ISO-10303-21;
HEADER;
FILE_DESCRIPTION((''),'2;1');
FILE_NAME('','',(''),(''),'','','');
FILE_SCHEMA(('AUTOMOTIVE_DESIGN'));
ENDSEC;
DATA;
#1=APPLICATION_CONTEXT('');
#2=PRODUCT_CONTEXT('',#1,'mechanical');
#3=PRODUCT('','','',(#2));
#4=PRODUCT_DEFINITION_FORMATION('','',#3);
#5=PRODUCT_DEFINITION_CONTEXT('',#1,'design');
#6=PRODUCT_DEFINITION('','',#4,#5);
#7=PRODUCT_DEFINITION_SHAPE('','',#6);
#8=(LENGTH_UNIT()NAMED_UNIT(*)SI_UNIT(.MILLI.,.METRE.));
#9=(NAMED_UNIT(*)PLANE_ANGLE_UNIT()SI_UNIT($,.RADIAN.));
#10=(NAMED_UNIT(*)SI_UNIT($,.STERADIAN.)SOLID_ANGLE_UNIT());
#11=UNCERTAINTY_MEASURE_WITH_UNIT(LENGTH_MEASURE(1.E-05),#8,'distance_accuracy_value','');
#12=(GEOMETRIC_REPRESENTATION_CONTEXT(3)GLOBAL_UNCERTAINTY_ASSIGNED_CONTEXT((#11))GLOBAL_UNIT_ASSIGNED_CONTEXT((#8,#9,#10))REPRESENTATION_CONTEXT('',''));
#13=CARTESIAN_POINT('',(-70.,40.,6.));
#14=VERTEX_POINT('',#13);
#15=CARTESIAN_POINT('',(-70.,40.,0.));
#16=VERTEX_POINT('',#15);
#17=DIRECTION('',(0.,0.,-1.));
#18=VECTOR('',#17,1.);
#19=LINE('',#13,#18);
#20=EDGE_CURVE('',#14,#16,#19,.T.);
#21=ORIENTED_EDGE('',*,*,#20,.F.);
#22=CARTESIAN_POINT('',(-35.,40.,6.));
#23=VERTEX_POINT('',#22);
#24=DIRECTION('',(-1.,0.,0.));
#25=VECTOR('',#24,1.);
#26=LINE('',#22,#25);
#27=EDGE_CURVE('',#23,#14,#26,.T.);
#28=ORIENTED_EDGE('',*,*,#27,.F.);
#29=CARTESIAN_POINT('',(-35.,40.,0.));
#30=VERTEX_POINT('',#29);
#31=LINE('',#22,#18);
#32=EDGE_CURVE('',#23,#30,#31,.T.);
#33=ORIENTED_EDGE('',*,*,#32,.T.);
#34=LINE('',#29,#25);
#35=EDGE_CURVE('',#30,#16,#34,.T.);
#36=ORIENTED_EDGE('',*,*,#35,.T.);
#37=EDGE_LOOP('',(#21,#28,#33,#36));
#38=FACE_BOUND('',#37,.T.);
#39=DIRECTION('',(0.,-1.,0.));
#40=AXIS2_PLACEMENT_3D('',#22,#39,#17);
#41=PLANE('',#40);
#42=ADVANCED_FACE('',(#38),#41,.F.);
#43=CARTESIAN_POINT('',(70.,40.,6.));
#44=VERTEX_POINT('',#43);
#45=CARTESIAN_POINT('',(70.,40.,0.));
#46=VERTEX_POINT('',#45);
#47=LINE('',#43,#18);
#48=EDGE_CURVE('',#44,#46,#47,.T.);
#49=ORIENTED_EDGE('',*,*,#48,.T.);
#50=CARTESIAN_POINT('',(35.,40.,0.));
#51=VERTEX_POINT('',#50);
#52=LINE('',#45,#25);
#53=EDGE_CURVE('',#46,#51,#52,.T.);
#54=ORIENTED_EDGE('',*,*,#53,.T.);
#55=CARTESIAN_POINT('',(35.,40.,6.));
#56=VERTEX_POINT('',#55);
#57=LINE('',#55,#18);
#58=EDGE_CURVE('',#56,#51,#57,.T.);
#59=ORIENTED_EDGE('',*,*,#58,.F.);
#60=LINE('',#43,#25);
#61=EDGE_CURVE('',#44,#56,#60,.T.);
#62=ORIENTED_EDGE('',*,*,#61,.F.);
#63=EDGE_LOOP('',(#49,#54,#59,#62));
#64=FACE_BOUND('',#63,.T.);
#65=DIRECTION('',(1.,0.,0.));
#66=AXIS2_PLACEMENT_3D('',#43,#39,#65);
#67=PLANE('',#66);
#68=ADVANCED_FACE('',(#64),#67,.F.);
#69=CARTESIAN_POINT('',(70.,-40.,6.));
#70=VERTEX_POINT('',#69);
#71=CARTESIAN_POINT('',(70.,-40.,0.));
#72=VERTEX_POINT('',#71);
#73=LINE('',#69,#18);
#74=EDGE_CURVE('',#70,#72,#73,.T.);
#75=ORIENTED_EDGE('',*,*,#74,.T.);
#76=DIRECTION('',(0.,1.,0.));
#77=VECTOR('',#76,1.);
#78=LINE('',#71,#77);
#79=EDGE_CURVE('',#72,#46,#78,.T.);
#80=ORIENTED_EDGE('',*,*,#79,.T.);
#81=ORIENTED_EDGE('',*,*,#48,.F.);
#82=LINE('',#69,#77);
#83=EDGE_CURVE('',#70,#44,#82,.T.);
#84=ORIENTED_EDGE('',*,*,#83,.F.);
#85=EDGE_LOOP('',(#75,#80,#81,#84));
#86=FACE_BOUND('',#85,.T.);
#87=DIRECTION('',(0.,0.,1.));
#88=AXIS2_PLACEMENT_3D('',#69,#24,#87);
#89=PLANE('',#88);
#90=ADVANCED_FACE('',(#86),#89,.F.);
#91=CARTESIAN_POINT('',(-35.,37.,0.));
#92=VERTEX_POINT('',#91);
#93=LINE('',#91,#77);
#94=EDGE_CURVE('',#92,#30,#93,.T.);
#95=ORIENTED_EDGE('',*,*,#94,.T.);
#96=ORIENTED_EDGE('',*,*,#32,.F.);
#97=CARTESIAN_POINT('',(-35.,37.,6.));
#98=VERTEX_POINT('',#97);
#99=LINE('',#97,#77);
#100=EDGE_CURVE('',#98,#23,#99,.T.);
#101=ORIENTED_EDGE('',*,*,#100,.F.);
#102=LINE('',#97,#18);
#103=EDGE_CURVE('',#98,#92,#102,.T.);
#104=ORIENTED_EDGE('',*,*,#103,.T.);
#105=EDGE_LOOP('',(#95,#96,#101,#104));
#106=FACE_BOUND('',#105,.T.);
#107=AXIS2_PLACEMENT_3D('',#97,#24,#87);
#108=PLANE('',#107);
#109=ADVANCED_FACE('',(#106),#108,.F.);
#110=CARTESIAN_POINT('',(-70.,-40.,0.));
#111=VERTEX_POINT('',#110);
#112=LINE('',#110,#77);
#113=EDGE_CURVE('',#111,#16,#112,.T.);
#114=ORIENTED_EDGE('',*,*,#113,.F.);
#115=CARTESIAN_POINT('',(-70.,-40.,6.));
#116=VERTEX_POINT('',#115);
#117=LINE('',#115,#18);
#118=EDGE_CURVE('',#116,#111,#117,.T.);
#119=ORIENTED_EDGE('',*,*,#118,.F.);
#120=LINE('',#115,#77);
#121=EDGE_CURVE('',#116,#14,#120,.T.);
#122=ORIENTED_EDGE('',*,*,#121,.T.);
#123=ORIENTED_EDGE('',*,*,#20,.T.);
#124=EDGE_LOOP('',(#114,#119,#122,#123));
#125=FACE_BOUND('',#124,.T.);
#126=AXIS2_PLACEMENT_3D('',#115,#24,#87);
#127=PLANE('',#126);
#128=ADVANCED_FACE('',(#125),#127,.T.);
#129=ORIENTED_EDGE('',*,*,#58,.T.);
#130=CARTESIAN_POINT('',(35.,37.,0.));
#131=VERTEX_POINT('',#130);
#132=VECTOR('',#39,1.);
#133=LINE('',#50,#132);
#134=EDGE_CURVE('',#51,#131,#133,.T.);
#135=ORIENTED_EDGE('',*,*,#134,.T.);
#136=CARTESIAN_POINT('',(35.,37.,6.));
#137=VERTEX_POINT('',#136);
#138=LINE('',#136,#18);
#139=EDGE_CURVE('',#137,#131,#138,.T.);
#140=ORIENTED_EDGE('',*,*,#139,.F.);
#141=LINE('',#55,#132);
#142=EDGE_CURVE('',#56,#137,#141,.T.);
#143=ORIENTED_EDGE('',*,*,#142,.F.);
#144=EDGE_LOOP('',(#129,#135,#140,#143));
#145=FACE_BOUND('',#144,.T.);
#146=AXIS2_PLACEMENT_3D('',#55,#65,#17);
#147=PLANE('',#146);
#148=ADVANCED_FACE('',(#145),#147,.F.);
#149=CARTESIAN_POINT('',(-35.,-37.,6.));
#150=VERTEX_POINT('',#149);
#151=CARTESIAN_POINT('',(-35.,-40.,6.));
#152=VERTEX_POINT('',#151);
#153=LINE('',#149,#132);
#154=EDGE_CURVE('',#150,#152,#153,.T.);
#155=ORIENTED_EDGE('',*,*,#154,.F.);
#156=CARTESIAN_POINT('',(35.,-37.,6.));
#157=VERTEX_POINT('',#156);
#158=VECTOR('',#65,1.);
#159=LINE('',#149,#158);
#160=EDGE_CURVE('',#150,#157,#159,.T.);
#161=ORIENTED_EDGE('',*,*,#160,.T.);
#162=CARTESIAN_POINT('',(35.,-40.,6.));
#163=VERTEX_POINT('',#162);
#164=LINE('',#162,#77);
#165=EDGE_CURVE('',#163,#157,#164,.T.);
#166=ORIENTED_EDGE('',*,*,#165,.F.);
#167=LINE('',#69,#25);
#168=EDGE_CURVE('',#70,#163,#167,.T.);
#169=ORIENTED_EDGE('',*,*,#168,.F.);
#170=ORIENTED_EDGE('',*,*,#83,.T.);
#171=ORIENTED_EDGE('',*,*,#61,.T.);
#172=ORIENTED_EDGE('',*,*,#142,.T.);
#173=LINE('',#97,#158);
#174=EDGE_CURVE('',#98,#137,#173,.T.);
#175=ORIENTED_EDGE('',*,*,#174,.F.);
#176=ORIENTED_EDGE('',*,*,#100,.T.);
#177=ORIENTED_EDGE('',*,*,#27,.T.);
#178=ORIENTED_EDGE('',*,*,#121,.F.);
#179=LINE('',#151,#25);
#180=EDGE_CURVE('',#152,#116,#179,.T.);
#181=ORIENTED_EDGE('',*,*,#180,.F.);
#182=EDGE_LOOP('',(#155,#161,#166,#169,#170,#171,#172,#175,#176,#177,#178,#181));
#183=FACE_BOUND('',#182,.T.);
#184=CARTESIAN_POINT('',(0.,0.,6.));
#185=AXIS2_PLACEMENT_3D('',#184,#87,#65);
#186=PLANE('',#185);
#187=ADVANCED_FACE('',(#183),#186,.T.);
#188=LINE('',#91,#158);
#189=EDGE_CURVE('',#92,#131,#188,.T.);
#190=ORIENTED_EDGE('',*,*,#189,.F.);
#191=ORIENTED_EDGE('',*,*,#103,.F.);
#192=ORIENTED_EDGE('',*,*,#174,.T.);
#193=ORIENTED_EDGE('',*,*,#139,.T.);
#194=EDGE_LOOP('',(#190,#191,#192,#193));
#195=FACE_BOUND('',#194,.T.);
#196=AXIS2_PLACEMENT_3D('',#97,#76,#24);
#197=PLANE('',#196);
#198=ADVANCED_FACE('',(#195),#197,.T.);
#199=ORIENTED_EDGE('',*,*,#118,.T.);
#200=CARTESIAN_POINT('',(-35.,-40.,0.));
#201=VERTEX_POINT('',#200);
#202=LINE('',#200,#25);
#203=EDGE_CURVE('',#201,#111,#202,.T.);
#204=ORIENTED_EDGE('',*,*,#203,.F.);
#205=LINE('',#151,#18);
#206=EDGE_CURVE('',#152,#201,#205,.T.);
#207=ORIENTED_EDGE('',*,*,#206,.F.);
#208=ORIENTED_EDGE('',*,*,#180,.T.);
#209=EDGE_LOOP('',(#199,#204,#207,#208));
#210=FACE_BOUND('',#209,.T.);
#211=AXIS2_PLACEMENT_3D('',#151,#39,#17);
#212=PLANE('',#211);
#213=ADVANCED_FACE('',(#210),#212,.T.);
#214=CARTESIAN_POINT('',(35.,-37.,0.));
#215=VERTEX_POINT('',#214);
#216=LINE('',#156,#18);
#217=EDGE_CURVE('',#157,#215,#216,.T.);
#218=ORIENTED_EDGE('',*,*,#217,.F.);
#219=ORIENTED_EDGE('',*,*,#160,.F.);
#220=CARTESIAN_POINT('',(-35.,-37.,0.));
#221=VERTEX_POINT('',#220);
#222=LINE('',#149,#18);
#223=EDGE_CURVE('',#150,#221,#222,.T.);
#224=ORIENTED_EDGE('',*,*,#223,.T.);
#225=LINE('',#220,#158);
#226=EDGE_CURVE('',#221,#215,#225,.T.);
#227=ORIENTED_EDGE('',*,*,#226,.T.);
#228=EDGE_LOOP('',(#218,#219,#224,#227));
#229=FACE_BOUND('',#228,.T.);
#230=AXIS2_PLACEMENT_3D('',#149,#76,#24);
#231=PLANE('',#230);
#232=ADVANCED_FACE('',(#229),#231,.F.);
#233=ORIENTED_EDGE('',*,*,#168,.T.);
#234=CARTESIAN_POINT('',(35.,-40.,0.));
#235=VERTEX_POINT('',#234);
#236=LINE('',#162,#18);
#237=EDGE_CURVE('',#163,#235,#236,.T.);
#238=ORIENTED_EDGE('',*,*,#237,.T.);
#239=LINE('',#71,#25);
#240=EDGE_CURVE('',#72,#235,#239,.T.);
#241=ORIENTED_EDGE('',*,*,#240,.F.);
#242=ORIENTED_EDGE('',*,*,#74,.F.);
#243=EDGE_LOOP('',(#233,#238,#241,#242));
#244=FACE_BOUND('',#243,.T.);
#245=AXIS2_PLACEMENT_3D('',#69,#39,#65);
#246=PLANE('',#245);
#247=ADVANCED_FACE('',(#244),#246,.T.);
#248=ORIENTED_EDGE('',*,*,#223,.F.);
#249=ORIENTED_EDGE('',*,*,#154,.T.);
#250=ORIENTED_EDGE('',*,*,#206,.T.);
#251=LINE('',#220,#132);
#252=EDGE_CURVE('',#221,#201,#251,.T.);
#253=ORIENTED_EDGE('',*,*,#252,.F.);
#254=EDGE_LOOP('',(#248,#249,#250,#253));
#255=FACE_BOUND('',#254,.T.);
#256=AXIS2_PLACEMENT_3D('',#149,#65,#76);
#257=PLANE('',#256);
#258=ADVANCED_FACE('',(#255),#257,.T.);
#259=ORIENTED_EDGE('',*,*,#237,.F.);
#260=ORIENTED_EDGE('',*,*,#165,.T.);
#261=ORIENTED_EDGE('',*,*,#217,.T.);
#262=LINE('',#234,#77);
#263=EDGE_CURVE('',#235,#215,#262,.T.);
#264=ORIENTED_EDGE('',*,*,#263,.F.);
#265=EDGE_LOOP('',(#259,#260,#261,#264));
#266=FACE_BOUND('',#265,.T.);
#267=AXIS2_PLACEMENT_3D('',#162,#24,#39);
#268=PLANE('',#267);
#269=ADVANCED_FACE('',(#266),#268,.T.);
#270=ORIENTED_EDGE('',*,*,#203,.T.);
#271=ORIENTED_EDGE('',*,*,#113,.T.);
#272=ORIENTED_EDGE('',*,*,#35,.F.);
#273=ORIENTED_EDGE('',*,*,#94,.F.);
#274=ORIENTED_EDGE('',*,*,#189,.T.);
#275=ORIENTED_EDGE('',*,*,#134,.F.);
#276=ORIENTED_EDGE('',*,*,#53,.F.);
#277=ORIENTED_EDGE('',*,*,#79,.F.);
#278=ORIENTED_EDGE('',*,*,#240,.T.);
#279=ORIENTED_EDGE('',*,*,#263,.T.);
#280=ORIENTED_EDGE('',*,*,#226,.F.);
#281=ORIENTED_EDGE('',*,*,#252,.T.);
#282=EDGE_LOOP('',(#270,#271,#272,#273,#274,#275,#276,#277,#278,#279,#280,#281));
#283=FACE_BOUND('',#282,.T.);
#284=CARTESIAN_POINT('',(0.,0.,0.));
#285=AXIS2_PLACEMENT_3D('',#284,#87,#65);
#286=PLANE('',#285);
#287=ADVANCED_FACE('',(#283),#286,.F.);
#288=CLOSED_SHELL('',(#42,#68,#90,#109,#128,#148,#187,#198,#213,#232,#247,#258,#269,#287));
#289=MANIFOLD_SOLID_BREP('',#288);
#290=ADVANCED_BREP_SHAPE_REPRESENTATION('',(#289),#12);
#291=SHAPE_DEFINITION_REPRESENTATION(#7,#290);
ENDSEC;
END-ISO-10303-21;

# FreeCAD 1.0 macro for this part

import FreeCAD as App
import Part
import Sketcher
from FreeCAD import Vector

doc = App.newDocument("Part")
body = doc.addObject("PartDesign::Body", "Body")

sketch1 = body.newObject("Sketcher::SketchObject", "Sketch")
sketch1.AttachmentSupport = (doc.getObject("XY_Plane"), [""])
sketch1.MapMode = "FlatFace"
sketch1.addGeometry(Part.LineSegment(Vector(70, -40, 0), Vector(70, 40, 0)), False)
sketch1.addGeometry(Part.LineSegment(Vector(70, 40, 0), Vector(35, 40, 0)), False)
sketch1.addGeometry(Part.LineSegment(Vector(35, 40, 0), Vector(35, 37, 0)), False)
sketch1.addGeometry(Part.LineSegment(Vector(35, 37, 0), Vector(-35, 37, 0)), False)
sketch1.addGeometry(Part.LineSegment(Vector(-35, 37, 0), Vector(-35, 40, 0)), False)
sketch1.addGeometry(Part.LineSegment(Vector(-35, 40, 0), Vector(-70, 40, 0)), False)
sketch1.addGeometry(Part.LineSegment(Vector(-70, 40, 0), Vector(-70, -40, 0)), False)
sketch1.addGeometry(Part.LineSegment(Vector(-70, -40, 0), Vector(-35, -40, 0)), False)
sketch1.addGeometry(Part.LineSegment(Vector(-35, -40, 0), Vector(-35, -37, 0)), False)
sketch1.addGeometry(Part.LineSegment(Vector(-35, -37, 0), Vector(35, -37, 0)), False)
sketch1.addGeometry(Part.LineSegment(Vector(35, -37, 0), Vector(35, -40, 0)), False)
sketch1.addGeometry(Part.LineSegment(Vector(35, -40, 0), Vector(70, -40, 0)), False)
sketch1.addConstraint(Sketcher.Constraint("Coincident", 0, 2, 1, 1))
sketch1.addConstraint(Sketcher.Constraint("Coincident", 1, 2, 2, 1))
sketch1.addConstraint(Sketcher.Constraint("Coincident", 2, 2, 3, 1))
sketch1.addConstraint(Sketcher.Constraint("Coincident", 3, 2, 4, 1))
sketch1.addConstraint(Sketcher.Constraint("Coincident", 4, 2, 5, 1))
sketch1.addConstraint(Sketcher.Constraint("Coincident", 5, 2, 6, 1))
sketch1.addConstraint(Sketcher.Constraint("Coincident", 6, 2, 7, 1))
sketch1.addConstraint(Sketcher.Constraint("Coincident", 7, 2, 8, 1))
sketch1.addConstraint(Sketcher.Constraint("Coincident", 8, 2, 9, 1))
sketch1.addConstraint(Sketcher.Constraint("Coincident", 9, 2, 10, 1))
sketch1.addConstraint(Sketcher.Constraint("Coincident", 10, 2, 11, 1))
sketch1.addConstraint(Sketcher.Constraint("Coincident", 11, 2, 0, 1))
sketch1.addConstraint(Sketcher.Constraint("Vertical", 0))
sketch1.addConstraint(Sketcher.Constraint("Horizontal", 1))
sketch1.addConstraint(Sketcher.Constraint("Vertical", 2))
sketch1.addConstraint(Sketcher.Constraint("Horizontal", 3))
sketch1.addConstraint(Sketcher.Constraint("Vertical", 4))
sketch1.addConstraint(Sketcher.Constraint("Horizontal", 5))
sketch1.addConstraint(Sketcher.Constraint("Vertical", 6))
sketch1.addConstraint(Sketcher.Constraint("Horizontal", 7))
sketch1.addConstraint(Sketcher.Constraint("Vertical", 8))
sketch1.addConstraint(Sketcher.Constraint("Horizontal", 9))
sketch1.addConstraint(Sketcher.Constraint("Vertical", 10))
sketch1.addConstraint(Sketcher.Constraint("Horizontal", 11))
sketch1.addConstraint(Sketcher.Constraint("Symmetric", 0, 2, 6, 2, -1, 1))
sketch1.addConstraint(Sketcher.Constraint("Symmetric", 2, 2, 8, 2, -1, 1))
sketch1.addConstraint(Sketcher.Constraint("Symmetric", 4, 2, 10, 2, -1, 1))
sketch1.addConstraint(Sketcher.Constraint("Symmetric", 1, 2, 4, 2, -2))
sketch1.addConstraint(Sketcher.Constraint("DistanceX", 1, 2, 1, 1, 35.0))
sketch1.addConstraint(Sketcher.Constraint("DistanceX", 3, 2, 3, 1, 70.0))
sketch1.addConstraint(Sketcher.Constraint("DistanceY", 0, 1, 0, 2, 80.0))
sketch1.addConstraint(Sketcher.Constraint("DistanceY", 2, 2, 2, 1, 3.0))
pad1 = body.newObject("PartDesign::Pad", "Pad")
pad1.Profile = sketch1
pad1.Length = 6

doc.recompute()
